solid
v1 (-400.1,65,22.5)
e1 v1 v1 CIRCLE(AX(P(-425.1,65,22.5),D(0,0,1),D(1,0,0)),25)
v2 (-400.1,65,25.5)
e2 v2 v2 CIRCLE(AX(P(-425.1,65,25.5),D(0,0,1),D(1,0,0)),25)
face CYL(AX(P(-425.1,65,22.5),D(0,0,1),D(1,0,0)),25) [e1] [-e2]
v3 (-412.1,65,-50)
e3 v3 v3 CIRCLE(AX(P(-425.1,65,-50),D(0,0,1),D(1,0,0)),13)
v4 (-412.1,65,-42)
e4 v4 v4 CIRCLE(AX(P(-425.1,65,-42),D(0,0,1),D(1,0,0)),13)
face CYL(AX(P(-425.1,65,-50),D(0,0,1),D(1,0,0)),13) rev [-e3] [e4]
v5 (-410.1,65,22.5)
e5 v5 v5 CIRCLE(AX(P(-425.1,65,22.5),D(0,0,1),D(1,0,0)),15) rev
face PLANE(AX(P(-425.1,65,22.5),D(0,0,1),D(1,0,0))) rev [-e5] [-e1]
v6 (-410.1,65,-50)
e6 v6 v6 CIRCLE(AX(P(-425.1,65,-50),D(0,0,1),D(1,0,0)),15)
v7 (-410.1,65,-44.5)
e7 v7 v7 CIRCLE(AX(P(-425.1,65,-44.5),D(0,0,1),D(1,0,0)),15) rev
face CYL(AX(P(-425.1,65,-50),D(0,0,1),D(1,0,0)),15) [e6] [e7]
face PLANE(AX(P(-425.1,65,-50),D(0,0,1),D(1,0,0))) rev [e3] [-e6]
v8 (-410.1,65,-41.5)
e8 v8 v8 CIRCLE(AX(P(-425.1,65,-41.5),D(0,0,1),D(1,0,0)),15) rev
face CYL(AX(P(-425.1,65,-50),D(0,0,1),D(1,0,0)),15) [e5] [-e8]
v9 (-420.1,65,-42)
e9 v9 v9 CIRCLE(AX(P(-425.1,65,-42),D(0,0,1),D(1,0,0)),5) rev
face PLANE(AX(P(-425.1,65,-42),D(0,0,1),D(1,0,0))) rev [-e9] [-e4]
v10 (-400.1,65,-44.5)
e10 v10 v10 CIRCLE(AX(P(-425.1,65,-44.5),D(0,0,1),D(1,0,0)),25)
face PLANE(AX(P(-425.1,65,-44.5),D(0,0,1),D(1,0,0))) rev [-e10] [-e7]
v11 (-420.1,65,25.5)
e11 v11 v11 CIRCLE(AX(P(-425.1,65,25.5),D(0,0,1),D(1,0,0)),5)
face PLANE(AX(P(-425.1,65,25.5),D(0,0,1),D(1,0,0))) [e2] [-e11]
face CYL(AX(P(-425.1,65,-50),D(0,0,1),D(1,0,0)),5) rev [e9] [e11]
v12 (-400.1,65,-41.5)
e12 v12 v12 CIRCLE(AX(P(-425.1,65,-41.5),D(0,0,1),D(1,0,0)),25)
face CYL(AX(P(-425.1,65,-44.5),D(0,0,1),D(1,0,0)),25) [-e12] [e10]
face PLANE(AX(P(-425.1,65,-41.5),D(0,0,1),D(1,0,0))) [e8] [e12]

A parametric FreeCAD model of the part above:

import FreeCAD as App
import Part
import Sketcher

V = App.Vector
Q = App.Units.Quantity

doc = App.newDocument("Part")
body = doc.addObject("PartDesign::Body", "Body")

sketch1 = doc.addObject("Sketcher::SketchObject", "Sketch")
body.addObject(sketch1)
sketch1.AttachmentSupport = (doc.XY_Plane, [""])
sketch1.MapMode = "FlatFace"
sketch1.AttachmentOffset = App.Placement(V(0, 0, -50), App.Rotation())
sketch1.addGeometry(Part.Circle(V(-425, 65, 0), V(0, 0, 1), 15), False)
sketch1.addConstraint([
    Sketcher.Constraint("Diameter", 0, Q("30 mm")),
    Sketcher.Constraint("DistanceY", -1, 1, 0, 3, Q("65 mm")),
    Sketcher.Constraint("DistanceX", 0, 3, -1, 1, Q("425.1 mm")),
])

sketch2 = doc.addObject("Sketcher::SketchObject", "Sketch001")
body.addObject(sketch2)
sketch2.AttachmentSupport = (doc.XZ_Plane, [""])
sketch2.MapMode = "FlatFace"
sketch2.AttachmentOffset = App.Placement(V(0, 0, -65), App.Rotation())
sketch2.addGeometry(Part.LineSegment(V(-425, -50, 0), V(-425, 26, 0)), False)
sketch2.addConstraint([
    Sketcher.Constraint("Vertical", 0),
    Sketcher.Constraint("DistanceY", 0, 1, 0, 2, Q("75.5 mm")),
    Sketcher.Constraint("DistanceY", 0, 1, -1, 1, Q("50 mm")),
    Sketcher.Constraint("DistanceX", 0, 1, -1, 1, Q("425.1 mm")),
])
doc.recompute()

additivepipe = doc.addObject("PartDesign::AdditivePipe", "AdditivePipe")
body.addObject(additivepipe)
additivepipe.Profile = sketch1
additivepipe.Spine = (sketch2, ["Edge1"])

sketch3 = doc.addObject("Sketcher::SketchObject", "Sketch002")
body.addObject(sketch3)
sketch3.AttachmentSupport = (doc.XY_Plane, [""])
sketch3.MapMode = "FlatFace"
sketch3.AttachmentOffset = App.Placement(V(0, 0, -44.5), App.Rotation())
sketch3.addGeometry(Part.Circle(V(-425, 65, 0), V(0, 0, 1), 25), False)
sketch3.addConstraint([
    Sketcher.Constraint("Diameter", 0, Q("50 mm")),
    Sketcher.Constraint("DistanceY", -1, 1, 0, 3, Q("65 mm")),
    Sketcher.Constraint("DistanceX", 0, 3, -1, 1, Q("425.1 mm")),
])

sketch4 = doc.addObject("Sketcher::SketchObject", "Sketch003")
body.addObject(sketch4)
sketch4.AttachmentSupport = (doc.XZ_Plane, [""])
sketch4.MapMode = "FlatFace"
sketch4.AttachmentOffset = App.Placement(V(0, 0, -65), App.Rotation())
sketch4.addGeometry(Part.LineSegment(V(-425.1, -44.5, 0), V(-425.1, -41.5, 0)), False)
sketch4.addConstraint([
    Sketcher.Constraint("Vertical", 0),
    Sketcher.Constraint("DistanceY", 0, 1, 0, 2, Q("3 mm")),
    Sketcher.Constraint("DistanceX", 0, 1, -1, 1, Q("425.1 mm")),
    Sketcher.Constraint("DistanceY", 0, 1, -1, 1, Q("44.5 mm")),
])
doc.recompute()

additivepipe2 = doc.addObject("PartDesign::AdditivePipe", "AdditivePipe001")
body.addObject(additivepipe2)
additivepipe2.Profile = sketch3
additivepipe2.Spine = (sketch4, ["Edge1"])

sketch5 = doc.addObject("Sketcher::SketchObject", "Sketch004")
body.addObject(sketch5)
sketch5.AttachmentSupport = (doc.XY_Plane, [""])
sketch5.MapMode = "FlatFace"
sketch5.AttachmentOffset = App.Placement(V(0, 0, 22.5), App.Rotation())
sketch5.addGeometry(Part.Circle(V(-425, 65, 0), V(0, 0, 1), 25), False)
sketch5.addConstraint([
    Sketcher.Constraint("Diameter", 0, Q("50 mm")),
    Sketcher.Constraint("DistanceY", -1, 1, 0, 3, Q("65 mm")),
    Sketcher.Constraint("DistanceX", 0, 3, -1, 1, Q("425.1 mm")),
])

sketch6 = doc.addObject("Sketcher::SketchObject", "Sketch005")
body.addObject(sketch6)
sketch6.AttachmentSupport = (doc.XZ_Plane, [""])
sketch6.MapMode = "FlatFace"
sketch6.AttachmentOffset = App.Placement(V(0, 0, -65), App.Rotation())
sketch6.addGeometry(Part.LineSegment(V(-425.1, 22.5, 0), V(-425.1, 25.5, 0)), False)
sketch6.addConstraint([
    Sketcher.Constraint("Vertical", 0),
    Sketcher.Constraint("DistanceY", 0, 1, 0, 2, Q("3 mm")),
    Sketcher.Constraint("DistanceX", 0, 1, -1, 1, Q("425.1 mm")),
    Sketcher.Constraint("DistanceY", -1, 1, 0, 1, Q("22.5 mm")),
])
doc.recompute()

additivepipe3 = doc.addObject("PartDesign::AdditivePipe", "AdditivePipe002")
body.addObject(additivepipe3)
additivepipe3.Profile = sketch5
additivepipe3.Spine = (sketch6, ["Edge1"])

sketch7 = doc.addObject("Sketcher::SketchObject", "Sketch006")
body.addObject(sketch7)
sketch7.AttachmentSupport = (doc.XY_Plane, [""])
sketch7.MapMode = "FlatFace"
sketch7.AttachmentOffset = App.Placement(V(0, 0, -50), App.Rotation())
sketch7.addGeometry(Part.Circle(V(-425, 65, 0), V(0, 0, 1), 5), False)
sketch7.addConstraint([
    Sketcher.Constraint("Diameter", 0, Q("10 mm")),
    Sketcher.Constraint("DistanceY", -1, 1, 0, 3, Q("65 mm")),
    Sketcher.Constraint("DistanceX", 0, 3, -1, 1, Q("425.1 mm")),
])

sketch8 = doc.addObject("Sketcher::SketchObject", "Sketch007")
body.addObject(sketch8)
sketch8.AttachmentSupport = (doc.XZ_Plane, [""])
sketch8.MapMode = "FlatFace"
sketch8.AttachmentOffset = App.Placement(V(0, 0, -65), App.Rotation())
sketch8.addGeometry(Part.LineSegment(V(-425, -50, 0), V(-425, 26, 0)), False)
sketch8.addConstraint([
    Sketcher.Constraint("Vertical", 0),
    Sketcher.Constraint("DistanceY", 0, 1, 0, 2, Q("75.5 mm")),
    Sketcher.Constraint("DistanceY", 0, 1, -1, 1, Q("50 mm")),
    Sketcher.Constraint("DistanceX", 0, 1, -1, 1, Q("425.1 mm")),
])
doc.recompute()

subtractivepipe = doc.addObject("PartDesign::SubtractivePipe", "SubtractivePipe")
body.addObject(subtractivepipe)
subtractivepipe.Profile = sketch7
subtractivepipe.Spine = (sketch8, ["Edge1"])

sketch9 = doc.addObject("Sketcher::SketchObject", "Sketch008")
body.addObject(sketch9)
sketch9.AttachmentSupport = (doc.XY_Plane, [""])
sketch9.MapMode = "FlatFace"
sketch9.AttachmentOffset = App.Placement(V(0, 0, -50), App.Rotation())
sketch9.addGeometry(Part.Circle(V(-425, 65, 0), V(0, 0, 1), 13), False)
sketch9.addConstraint([
    Sketcher.Constraint("Diameter", 0, Q("26 mm")),
    Sketcher.Constraint("DistanceY", -1, 1, 0, 3, Q("65 mm")),
    Sketcher.Constraint("DistanceX", 0, 3, -1, 1, Q("425.1 mm")),
])

sketch10 = doc.addObject("Sketcher::SketchObject", "Sketch009")
body.addObject(sketch10)
sketch10.AttachmentSupport = (doc.XZ_Plane, [""])
sketch10.MapMode = "FlatFace"
sketch10.AttachmentOffset = App.Placement(V(0, 0, -65), App.Rotation())
sketch10.addGeometry(Part.LineSegment(V(-425, -50, 0), V(-425, -42, 0)), False)
sketch10.addConstraint([
    Sketcher.Constraint("Vertical", 0),
    Sketcher.Constraint("DistanceY", 0, 1, 0, 2, Q("8 mm")),
    Sketcher.Constraint("DistanceY", 0, 1, -1, 1, Q("50 mm")),
    Sketcher.Constraint("DistanceX", 0, 1, -1, 1, Q("425.1 mm")),
])
doc.recompute()

subtractivepipe2 = doc.addObject("PartDesign::SubtractivePipe", "SubtractivePipe001")
body.addObject(subtractivepipe2)
subtractivepipe2.Profile = sketch9
subtractivepipe2.Spine = (sketch10, ["Edge1"])

doc.recompute()
